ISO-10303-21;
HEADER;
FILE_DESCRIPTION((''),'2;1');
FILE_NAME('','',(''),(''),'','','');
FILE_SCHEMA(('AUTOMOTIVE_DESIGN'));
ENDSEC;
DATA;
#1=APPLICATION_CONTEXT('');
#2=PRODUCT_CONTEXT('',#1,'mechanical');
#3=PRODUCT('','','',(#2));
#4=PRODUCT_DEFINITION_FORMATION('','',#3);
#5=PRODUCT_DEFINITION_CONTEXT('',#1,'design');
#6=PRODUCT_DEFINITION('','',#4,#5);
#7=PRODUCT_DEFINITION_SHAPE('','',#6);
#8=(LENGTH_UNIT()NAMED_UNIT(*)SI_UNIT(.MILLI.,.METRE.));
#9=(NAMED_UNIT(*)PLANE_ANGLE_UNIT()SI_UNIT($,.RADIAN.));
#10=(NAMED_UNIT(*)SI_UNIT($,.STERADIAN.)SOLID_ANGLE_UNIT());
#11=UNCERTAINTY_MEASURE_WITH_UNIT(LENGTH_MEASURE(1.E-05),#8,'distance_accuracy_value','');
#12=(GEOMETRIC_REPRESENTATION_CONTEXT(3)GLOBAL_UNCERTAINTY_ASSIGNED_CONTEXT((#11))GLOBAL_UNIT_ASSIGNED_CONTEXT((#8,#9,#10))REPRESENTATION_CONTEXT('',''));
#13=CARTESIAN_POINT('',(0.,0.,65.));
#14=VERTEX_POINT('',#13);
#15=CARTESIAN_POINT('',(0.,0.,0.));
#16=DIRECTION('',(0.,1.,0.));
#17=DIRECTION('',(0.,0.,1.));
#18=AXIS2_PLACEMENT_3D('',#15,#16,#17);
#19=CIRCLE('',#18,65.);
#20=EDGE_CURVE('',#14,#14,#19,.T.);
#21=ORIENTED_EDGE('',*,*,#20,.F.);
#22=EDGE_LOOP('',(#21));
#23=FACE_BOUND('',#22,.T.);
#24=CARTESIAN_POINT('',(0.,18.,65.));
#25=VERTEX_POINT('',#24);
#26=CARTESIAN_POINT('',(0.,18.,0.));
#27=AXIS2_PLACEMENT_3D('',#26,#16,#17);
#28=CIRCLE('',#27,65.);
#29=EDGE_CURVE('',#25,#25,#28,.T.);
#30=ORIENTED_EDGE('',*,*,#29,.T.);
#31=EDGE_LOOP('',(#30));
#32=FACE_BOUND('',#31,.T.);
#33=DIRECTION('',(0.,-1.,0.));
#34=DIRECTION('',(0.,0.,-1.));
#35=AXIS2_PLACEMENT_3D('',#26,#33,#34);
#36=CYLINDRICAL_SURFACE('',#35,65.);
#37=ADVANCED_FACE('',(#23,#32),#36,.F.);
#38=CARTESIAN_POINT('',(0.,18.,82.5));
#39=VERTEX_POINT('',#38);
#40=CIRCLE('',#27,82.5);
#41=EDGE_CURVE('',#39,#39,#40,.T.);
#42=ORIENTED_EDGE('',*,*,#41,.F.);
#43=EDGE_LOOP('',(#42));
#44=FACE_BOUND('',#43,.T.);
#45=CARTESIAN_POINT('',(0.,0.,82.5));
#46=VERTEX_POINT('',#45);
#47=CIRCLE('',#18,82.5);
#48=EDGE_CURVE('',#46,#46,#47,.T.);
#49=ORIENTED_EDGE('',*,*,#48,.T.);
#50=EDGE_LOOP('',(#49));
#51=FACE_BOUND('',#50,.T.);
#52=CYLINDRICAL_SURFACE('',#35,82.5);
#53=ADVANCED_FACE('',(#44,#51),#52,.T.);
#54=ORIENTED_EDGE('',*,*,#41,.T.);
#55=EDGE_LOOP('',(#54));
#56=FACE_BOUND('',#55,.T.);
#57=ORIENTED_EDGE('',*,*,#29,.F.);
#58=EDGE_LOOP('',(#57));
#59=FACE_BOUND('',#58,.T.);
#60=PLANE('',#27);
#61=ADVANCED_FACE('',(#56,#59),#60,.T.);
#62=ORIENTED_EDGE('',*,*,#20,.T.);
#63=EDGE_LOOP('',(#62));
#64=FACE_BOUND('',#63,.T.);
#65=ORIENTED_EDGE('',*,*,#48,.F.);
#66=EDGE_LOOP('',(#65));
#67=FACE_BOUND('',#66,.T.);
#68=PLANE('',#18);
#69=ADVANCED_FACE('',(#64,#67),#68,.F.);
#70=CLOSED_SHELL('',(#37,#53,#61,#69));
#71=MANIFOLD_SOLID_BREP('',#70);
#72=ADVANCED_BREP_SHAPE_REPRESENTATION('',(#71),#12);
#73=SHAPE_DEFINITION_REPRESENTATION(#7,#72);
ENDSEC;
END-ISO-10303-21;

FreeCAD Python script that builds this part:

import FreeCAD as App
import Part
import Sketcher

V = App.Vector

doc = App.newDocument("Part")
params = doc.addObject("Spreadsheet::Sheet", "Params")
for row, (alias, value) in enumerate([
    ("sketch1_diameter", "165 mm"),
    ("sketch1_diameter2", "130 mm"),
    ("pad1_length", "18 mm"),
], start=1):
    params.set(f"A{row}", alias)
    params.set(f"B{row}", "=" + value)
    params.setAlias(f"B{row}", alias)

body = doc.addObject("PartDesign::Body", "Body")

# Sketch on XZ plane
sketch1 = body.newObject("Sketcher::SketchObject", "Sketch")
sketch1.AttachmentSupport = (doc.getObject("XZ_Plane"), [""])
sketch1.MapMode = "FlatFace"
sketch1.addGeometry(Part.Circle(V(0, 0, 0), V(0, 0, 1), 82), False)
sketch1.addGeometry(Part.Circle(V(0, 0, 0), V(0, 0, 1), 65), False)
sketch1.addConstraint(Sketcher.Constraint("Coincident", 0, 3, -1, 1))
sketch1.addConstraint(Sketcher.Constraint("Coincident", 1, 3, -1, 1))
sketch1.addConstraint(Sketcher.Constraint("Diameter", 0, 165.0))
sketch1.addConstraint(Sketcher.Constraint("Diameter", 1, 130.0))
sketch1.setExpression("Constraints[2]", "Params.sketch1_diameter")
sketch1.setExpression("Constraints[3]", "Params.sketch1_diameter2")
pad1 = body.newObject("PartDesign::Pad", "Pad")
pad1.Profile = sketch1
pad1.setExpression("Length", "Params.pad1_length")
pad1.Reversed = True

doc.recompute()
